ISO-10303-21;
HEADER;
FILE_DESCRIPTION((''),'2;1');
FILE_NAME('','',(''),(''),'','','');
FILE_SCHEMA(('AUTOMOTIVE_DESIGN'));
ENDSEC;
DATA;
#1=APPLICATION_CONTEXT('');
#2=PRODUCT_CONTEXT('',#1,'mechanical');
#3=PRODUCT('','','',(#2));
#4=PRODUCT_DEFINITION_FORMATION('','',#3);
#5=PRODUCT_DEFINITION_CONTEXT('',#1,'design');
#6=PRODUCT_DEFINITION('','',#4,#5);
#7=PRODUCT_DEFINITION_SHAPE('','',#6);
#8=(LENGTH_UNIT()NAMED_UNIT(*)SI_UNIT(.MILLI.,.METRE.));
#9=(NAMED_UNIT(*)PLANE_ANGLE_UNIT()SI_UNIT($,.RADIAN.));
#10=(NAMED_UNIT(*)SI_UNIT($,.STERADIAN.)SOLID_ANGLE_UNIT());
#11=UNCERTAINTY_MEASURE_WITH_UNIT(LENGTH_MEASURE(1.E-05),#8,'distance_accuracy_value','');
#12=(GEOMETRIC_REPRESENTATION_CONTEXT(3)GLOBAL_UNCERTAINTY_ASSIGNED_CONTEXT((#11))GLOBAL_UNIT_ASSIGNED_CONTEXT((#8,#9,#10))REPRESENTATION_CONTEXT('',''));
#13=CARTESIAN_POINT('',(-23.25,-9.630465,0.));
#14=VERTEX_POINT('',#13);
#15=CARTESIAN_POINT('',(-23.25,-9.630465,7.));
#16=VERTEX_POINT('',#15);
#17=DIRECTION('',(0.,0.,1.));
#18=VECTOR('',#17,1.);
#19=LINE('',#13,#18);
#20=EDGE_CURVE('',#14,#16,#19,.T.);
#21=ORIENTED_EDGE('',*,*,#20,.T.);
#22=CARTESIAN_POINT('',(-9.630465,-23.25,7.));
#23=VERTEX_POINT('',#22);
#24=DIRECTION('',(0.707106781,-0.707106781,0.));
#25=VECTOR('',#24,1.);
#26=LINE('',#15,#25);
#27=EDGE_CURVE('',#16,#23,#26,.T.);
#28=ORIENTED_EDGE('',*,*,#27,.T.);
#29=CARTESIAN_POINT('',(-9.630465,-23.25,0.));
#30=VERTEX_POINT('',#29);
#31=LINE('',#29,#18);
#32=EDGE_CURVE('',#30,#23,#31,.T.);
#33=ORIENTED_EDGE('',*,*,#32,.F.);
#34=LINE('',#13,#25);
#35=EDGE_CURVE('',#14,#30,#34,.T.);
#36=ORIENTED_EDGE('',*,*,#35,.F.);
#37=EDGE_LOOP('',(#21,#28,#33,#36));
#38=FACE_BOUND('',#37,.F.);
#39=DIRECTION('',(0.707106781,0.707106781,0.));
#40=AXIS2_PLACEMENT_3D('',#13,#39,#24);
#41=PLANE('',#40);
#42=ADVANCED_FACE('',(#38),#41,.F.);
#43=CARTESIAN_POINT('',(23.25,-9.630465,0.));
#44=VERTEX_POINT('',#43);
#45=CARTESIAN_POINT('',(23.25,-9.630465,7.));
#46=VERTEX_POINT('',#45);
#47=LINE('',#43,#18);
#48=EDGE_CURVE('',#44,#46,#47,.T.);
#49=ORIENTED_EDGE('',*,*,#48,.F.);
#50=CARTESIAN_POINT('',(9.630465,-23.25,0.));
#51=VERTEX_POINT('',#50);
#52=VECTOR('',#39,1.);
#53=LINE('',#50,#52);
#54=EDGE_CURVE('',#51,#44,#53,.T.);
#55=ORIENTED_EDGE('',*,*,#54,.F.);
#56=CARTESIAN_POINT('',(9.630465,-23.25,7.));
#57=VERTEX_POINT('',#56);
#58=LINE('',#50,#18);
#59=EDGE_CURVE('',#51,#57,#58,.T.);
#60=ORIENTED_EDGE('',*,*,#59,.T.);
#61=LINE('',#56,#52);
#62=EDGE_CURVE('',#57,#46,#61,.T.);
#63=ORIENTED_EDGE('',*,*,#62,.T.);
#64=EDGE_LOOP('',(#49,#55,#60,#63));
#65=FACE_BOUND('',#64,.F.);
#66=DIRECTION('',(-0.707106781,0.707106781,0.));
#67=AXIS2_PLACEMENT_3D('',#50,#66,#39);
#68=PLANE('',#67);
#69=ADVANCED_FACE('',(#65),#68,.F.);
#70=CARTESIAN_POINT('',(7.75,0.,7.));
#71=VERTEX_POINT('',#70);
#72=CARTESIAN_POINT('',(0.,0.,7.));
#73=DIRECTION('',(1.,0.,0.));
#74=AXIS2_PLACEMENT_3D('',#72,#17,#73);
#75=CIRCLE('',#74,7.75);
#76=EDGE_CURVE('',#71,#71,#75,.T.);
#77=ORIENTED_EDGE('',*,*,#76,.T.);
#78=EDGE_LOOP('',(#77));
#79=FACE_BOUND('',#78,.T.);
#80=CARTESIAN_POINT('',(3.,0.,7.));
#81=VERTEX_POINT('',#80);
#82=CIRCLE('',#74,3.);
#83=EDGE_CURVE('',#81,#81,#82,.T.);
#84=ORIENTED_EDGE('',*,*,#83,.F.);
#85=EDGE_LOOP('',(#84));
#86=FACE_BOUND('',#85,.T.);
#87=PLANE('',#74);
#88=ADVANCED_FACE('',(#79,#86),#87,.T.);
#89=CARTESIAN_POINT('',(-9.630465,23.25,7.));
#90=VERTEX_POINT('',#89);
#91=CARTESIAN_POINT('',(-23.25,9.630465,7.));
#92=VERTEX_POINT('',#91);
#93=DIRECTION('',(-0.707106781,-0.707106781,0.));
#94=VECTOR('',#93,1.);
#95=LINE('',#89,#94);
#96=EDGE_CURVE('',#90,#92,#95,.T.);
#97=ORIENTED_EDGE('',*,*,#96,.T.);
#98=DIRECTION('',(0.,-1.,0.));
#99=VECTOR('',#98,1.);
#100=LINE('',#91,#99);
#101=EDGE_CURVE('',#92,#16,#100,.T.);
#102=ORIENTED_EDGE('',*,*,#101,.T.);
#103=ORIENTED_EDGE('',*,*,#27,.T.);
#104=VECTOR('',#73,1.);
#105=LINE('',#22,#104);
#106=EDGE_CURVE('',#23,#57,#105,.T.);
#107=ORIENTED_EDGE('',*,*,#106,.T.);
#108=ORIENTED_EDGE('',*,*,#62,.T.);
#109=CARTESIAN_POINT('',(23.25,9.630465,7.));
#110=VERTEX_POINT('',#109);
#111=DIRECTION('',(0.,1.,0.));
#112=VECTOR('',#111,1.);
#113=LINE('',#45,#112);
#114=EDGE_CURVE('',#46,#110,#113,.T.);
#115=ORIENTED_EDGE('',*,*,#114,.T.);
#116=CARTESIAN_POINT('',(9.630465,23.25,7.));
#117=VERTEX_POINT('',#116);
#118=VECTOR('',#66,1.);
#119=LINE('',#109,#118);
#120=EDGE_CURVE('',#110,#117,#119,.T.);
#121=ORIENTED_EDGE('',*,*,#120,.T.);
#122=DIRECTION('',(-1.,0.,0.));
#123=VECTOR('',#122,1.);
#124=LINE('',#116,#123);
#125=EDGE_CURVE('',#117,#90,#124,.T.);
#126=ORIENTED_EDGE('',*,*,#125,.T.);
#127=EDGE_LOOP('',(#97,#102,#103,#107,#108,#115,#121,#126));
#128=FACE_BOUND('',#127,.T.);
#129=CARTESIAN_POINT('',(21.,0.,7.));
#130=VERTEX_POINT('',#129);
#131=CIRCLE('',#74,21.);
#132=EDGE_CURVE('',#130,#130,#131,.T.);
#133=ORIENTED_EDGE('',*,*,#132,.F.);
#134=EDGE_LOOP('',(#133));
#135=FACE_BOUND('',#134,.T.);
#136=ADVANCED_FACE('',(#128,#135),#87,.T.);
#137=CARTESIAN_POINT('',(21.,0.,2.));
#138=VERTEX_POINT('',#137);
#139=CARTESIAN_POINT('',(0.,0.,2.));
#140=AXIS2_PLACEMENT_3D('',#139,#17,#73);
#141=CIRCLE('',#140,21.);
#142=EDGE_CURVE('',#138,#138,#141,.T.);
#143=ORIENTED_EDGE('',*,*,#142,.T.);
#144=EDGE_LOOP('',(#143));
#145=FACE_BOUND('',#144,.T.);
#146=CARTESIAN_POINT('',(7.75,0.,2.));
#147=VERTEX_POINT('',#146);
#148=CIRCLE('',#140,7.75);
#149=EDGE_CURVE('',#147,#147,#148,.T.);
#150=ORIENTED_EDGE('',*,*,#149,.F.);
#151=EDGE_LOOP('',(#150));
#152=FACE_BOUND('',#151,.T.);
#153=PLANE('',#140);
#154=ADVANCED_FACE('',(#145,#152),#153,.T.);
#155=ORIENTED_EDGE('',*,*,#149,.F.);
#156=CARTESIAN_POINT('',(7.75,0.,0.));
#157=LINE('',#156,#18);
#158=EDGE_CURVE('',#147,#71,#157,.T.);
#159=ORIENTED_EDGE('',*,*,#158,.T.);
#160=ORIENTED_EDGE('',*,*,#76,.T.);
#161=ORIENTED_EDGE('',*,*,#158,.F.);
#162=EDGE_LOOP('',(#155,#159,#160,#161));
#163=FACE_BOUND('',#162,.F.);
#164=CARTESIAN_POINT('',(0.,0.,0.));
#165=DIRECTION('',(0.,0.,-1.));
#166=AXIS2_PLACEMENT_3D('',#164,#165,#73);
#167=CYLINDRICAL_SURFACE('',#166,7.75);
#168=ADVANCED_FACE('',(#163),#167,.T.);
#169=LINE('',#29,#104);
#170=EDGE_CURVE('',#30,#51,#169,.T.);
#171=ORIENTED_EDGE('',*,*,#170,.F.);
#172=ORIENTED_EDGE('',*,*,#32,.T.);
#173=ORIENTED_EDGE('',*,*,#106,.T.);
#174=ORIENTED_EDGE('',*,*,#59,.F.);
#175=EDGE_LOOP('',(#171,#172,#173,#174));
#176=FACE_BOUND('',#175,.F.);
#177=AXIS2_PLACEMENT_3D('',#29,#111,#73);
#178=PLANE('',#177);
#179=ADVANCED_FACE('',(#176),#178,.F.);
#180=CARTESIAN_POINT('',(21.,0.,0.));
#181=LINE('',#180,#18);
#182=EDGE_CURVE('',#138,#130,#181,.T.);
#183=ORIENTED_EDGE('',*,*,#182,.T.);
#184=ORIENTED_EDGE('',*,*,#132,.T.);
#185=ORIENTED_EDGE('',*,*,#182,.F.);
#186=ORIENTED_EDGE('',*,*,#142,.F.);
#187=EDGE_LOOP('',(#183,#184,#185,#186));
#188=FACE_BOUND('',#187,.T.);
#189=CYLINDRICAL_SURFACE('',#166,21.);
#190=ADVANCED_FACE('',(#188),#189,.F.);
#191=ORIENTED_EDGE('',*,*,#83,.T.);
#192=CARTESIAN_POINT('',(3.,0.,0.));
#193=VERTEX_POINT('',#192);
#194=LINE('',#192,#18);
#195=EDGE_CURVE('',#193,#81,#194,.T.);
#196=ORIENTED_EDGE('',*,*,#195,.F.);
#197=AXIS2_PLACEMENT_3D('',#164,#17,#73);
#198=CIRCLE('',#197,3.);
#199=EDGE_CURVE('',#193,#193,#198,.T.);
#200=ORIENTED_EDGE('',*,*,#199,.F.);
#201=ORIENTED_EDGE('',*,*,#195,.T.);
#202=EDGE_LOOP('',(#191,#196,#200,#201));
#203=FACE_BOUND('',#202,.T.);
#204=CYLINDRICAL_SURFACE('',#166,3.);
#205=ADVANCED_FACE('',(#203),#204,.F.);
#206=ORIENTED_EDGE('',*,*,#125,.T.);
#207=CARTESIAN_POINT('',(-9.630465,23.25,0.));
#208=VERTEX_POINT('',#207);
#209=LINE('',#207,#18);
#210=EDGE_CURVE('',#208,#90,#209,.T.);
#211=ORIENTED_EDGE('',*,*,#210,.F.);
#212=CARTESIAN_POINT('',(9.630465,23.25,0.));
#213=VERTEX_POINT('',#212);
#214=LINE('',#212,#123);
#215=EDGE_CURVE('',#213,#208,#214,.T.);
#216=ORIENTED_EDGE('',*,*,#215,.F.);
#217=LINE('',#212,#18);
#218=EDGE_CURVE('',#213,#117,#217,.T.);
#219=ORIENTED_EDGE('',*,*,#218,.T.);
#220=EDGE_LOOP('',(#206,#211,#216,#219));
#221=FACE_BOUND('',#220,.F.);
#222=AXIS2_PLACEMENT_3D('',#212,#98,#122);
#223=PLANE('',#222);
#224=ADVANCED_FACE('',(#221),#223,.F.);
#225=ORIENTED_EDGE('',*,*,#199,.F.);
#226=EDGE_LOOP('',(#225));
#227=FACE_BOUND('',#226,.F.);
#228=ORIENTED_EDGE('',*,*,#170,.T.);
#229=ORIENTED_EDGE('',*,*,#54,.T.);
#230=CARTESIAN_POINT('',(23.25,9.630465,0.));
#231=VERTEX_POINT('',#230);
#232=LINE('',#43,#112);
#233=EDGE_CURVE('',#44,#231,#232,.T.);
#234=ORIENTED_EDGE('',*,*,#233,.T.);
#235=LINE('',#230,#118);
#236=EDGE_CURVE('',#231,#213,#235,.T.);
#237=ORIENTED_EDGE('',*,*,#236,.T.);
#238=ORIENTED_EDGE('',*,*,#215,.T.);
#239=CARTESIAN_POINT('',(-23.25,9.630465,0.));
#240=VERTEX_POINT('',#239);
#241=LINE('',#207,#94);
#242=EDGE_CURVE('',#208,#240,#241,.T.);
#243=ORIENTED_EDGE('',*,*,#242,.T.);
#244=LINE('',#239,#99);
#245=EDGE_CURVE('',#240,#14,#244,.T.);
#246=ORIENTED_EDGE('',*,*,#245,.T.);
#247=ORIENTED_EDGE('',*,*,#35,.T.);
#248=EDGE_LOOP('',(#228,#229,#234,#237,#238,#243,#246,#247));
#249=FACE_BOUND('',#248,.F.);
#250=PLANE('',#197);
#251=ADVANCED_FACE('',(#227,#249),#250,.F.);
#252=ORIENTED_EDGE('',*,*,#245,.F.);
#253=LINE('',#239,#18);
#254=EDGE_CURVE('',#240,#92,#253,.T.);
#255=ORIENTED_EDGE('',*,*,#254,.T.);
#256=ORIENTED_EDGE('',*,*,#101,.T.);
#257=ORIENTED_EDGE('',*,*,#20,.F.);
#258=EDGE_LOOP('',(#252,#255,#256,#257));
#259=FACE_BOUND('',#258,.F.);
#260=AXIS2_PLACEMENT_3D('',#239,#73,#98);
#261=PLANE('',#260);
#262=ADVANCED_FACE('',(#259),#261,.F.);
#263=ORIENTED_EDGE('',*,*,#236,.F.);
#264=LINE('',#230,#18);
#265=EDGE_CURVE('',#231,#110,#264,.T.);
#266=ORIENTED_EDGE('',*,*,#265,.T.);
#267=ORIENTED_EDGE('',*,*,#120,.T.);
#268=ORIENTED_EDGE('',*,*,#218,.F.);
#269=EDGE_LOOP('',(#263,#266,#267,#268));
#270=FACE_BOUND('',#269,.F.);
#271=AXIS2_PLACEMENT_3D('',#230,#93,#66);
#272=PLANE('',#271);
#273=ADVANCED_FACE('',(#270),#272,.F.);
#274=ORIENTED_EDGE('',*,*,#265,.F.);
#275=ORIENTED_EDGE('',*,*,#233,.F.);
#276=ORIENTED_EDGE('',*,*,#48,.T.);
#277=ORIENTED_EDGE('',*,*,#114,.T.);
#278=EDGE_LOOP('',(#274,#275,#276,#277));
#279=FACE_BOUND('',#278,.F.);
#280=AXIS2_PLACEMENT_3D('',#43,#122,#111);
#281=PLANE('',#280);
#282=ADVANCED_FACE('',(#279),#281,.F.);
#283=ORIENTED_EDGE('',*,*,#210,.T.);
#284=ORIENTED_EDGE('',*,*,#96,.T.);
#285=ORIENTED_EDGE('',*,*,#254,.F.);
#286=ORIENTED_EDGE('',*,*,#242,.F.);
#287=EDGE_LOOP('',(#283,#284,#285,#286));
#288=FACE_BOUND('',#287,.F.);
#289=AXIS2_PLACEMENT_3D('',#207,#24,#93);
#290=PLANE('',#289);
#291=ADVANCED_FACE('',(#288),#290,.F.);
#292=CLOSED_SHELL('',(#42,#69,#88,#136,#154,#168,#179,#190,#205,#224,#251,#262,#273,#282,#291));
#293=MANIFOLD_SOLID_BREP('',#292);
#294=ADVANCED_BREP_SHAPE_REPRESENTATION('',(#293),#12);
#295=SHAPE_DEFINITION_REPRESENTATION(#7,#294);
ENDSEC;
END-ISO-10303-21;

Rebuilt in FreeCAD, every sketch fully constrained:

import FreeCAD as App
import Part
import Sketcher
Q = App.Units.Quantity


def add_polygon(sketch, points):
    """Adds a closed chain of lines whose ends are joined by coincident constraints."""
    first, n = sketch.GeometryCount, len(points)
    for a, b in zip(points, points[1:] + points[:1]):
        sketch.addGeometry(Part.LineSegment(App.Vector(*a, 0), App.Vector(*b, 0)), False)
    for i in range(n):
        sketch.addConstraint(Sketcher.Constraint("Coincident", first + i, 2, first + (i + 1) % n, 1))

doc = App.newDocument("Part")
body = doc.addObject("PartDesign::Body", "Body")
body.AllowCompound = True

# Sketch on XY plane
sketch1 = doc.addObject("Sketcher::SketchObject", "Sketch")
body.addObject(sketch1)
sketch1.AttachmentSupport = (doc.XY_Plane, [""])
sketch1.MapMode = "FlatFace"
add_polygon(sketch1, [(23.25, -9.630465), (23.25, 9.630465), (9.630465, 23.25), (-9.630465, 23.25), (-23.25, 9.630465), (-23.25, -9.630465), (-9.630465, -23.25), (9.630465, -23.25)])  # lines 0-7
sketch1.addGeometry(Part.Circle(App.Vector(0, 0, 0), App.Vector(0, 0, 1), 21), False)  # 8
sketch1.addGeometry(Part.Circle(App.Vector(0, 0, 0), App.Vector(0, 0, 1), 7.75), False)  # 9
sketch1.addGeometry(Part.Circle(App.Vector(0, 0, 0), App.Vector(0, 0, 1), 3), False)  # 10
sketch1.addConstraint([
    Sketcher.Constraint("Vertical", 0),
    Sketcher.Constraint("Horizontal", 2),
    Sketcher.Constraint("Vertical", 4),
    Sketcher.Constraint("Horizontal", 6),
    Sketcher.Constraint("Coincident", 8, 3, -1, 1),
    Sketcher.Constraint("Coincident", 9, 3, -1, 1),
    Sketcher.Constraint("Coincident", 10, 3, -1, 1),
    Sketcher.Constraint("Symmetric", 0, 2, 4, 2, -1, 1),
    Sketcher.Constraint("Symmetric", 1, 2, 5, 2, -1, 1),
    Sketcher.Constraint("Perpendicular", 1, 3),
    Sketcher.Constraint("Perpendicular", 5, 7),
    Sketcher.Constraint("Horizontal", 0, 2, 3, 2),
    Sketcher.Constraint("Horizontal", 4, 2, 7, 2),
    Sketcher.Constraint("Vertical", 2, 2, 5, 2),
    Sketcher.Constraint("Equal", 6, 0),
    Sketcher.Constraint("Diameter", 8, Q("42 mm")),
    Sketcher.Constraint("Diameter", 10, Q("6 mm")),
    Sketcher.Constraint("Diameter", 9, Q("15.5 mm")),
    Sketcher.Constraint("DistanceX", -1, 1, 0, 2, Q("23.25 mm")),
    Sketcher.Constraint("DistanceX", 2, 2, 2, 1, Q("19.26093 mm")),
])
pad1 = doc.addObject("PartDesign::Pad", "Pad")
body.addObject(pad1)
pad1.Profile = sketch1
pad1.Length = 7

# Sketch on XY plane
sketch2 = doc.addObject("Sketcher::SketchObject", "Sketch001")
body.addObject(sketch2)
sketch2.AttachmentSupport = (doc.XY_Plane, [""])
sketch2.MapMode = "FlatFace"
sketch2.addGeometry([
    Part.Circle(App.Vector(0, 0, 0), App.Vector(0, 0, 1), 21),
    Part.Circle(App.Vector(0, 0, 0), App.Vector(0, 0, 1), 7.75),
], False)
sketch2.addConstraint([
    Sketcher.Constraint("Coincident", 0, 3, -1, 1),
    Sketcher.Constraint("Coincident", 1, 3, -1, 1),
    Sketcher.Constraint("Diameter", 0, Q("42 mm")),
    Sketcher.Constraint("Diameter", 1, Q("15.5 mm")),
])
pad2 = doc.addObject("PartDesign::Pad", "Pad001")
body.addObject(pad2)
pad2.Profile = sketch2
pad2.Length = 2

doc.recompute()
